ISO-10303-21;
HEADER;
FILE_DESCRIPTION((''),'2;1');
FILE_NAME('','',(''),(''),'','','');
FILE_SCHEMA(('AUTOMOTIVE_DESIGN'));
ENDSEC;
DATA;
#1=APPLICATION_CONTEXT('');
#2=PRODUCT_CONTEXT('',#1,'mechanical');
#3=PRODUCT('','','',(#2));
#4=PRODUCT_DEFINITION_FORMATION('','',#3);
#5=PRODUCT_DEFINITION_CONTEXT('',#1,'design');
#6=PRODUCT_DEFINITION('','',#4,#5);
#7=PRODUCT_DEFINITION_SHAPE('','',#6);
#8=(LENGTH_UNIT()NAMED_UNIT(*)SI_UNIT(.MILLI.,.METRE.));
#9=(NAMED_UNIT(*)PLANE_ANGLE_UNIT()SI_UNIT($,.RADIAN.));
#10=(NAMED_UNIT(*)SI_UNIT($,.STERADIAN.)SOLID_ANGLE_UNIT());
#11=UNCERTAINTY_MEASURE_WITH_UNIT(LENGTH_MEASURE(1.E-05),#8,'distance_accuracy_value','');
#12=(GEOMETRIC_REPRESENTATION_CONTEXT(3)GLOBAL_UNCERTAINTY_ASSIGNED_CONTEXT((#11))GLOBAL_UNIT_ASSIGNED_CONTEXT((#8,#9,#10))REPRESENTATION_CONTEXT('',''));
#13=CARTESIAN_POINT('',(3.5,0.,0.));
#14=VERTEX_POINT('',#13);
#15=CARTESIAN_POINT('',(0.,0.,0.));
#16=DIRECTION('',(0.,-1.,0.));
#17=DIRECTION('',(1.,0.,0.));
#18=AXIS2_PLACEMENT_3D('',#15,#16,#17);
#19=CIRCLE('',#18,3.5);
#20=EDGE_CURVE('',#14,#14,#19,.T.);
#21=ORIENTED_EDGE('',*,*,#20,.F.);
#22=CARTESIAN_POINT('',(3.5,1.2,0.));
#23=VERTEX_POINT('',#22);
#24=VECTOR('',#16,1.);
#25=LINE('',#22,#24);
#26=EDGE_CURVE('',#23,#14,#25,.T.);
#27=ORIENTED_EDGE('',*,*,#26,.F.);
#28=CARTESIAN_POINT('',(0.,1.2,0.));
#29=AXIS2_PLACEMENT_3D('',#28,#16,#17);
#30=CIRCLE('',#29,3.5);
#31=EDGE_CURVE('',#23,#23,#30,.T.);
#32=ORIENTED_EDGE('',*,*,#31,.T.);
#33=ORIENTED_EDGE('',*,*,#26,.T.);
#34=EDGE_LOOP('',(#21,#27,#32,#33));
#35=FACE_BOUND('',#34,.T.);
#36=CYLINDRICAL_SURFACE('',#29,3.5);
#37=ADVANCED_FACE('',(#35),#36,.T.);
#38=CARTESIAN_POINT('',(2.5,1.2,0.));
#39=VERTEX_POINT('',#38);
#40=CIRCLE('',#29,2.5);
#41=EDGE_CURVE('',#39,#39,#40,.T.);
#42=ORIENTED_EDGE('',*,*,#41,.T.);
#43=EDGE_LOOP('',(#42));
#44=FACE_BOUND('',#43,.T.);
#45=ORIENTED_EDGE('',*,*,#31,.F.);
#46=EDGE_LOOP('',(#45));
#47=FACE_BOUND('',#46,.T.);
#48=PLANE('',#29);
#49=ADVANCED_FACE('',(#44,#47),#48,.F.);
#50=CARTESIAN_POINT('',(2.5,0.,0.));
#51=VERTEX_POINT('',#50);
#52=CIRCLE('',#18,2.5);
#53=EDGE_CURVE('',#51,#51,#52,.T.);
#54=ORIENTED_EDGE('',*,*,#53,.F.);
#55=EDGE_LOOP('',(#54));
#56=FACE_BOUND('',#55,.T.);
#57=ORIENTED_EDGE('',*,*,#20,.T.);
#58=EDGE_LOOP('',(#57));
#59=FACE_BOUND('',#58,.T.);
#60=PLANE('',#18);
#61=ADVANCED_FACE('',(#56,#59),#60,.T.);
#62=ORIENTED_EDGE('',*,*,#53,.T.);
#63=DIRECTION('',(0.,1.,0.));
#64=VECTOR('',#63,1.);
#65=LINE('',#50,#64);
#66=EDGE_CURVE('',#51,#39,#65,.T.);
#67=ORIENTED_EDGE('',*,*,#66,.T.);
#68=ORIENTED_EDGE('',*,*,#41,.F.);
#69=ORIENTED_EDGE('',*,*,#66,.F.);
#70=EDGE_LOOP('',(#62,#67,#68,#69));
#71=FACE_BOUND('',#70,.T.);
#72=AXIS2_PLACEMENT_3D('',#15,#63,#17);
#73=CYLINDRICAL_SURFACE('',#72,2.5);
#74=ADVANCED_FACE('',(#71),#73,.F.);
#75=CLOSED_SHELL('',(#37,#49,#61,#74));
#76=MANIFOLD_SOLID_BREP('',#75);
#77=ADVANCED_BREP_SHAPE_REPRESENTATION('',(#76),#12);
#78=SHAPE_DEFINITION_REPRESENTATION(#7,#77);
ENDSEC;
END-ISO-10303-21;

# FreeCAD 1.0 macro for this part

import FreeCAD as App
import Part
import Sketcher
from FreeCAD import Vector

doc = App.newDocument("Part")
body = doc.addObject("PartDesign::Body", "Body")

# Sketch on XY plane
sketch1 = body.newObject("Sketcher::SketchObject", "Sketch")
sketch1.AttachmentSupport = (doc.getObject("XY_Plane"), [""])
sketch1.MapMode = "FlatFace"
sketch1.addGeometry([
    Part.LineSegment(Vector(2.5, 1.2, 0), Vector(2.5, 0, 0)),
    Part.LineSegment(Vector(2.5, 0, 0), Vector(3.5, 0, 0)),
    Part.LineSegment(Vector(3.5, 0, 0), Vector(3.5, 1.2, 0)),
    Part.LineSegment(Vector(3.5, 1.2, 0), Vector(2.5, 1.2, 0)),
], False)
sketch1.addConstraint([
    Sketcher.Constraint("Coincident", 0, 2, 1, 1),
    Sketcher.Constraint("Coincident", 1, 2, 2, 1),
    Sketcher.Constraint("Coincident", 2, 2, 3, 1),
    Sketcher.Constraint("Coincident", 3, 2, 0, 1),
    Sketcher.Constraint("Vertical", 0),
    Sketcher.Constraint("Horizontal", 1),
    Sketcher.Constraint("Vertical", 2),
    Sketcher.Constraint("Horizontal", 3),
    Sketcher.Constraint("PointOnObject", 0, 2, -1),
    Sketcher.Constraint("DistanceY", 0, 2, 0, 1, 1.2),
    Sketcher.Constraint("DistanceX", 1, 1, 1, 2, 1.0),
    Sketcher.Constraint("DistanceX", -1, 1, 0, 2, 2.5),
])
revolution = body.newObject("PartDesign::Revolution", "Revolution")
revolution.Profile = sketch1
revolution.ReferenceAxis = (sketch1, ["V_Axis"])
revolution.Angle = 360

doc.recompute()
